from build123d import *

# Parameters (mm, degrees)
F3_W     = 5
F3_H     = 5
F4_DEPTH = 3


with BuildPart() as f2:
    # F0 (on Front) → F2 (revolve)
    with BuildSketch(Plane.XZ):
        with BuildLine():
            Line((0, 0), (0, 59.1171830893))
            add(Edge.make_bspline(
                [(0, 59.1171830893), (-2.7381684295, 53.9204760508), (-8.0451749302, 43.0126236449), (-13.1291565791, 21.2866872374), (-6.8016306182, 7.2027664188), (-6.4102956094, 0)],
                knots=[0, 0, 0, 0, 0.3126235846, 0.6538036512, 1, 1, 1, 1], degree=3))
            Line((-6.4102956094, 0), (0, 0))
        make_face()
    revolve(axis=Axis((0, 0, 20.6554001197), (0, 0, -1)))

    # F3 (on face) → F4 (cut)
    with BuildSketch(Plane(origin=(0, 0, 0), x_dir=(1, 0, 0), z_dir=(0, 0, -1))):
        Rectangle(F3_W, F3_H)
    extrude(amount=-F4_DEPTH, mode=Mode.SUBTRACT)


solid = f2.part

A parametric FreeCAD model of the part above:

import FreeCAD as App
import Part
import Sketcher

V = App.Vector


def add_polygon(sketch, points):
    """Adds a closed chain of lines whose ends are joined by coincident constraints."""
    first, n = sketch.GeometryCount, len(points)
    for a, b in zip(points, points[1:] + points[:1]):
        sketch.addGeometry(Part.LineSegment(App.Vector(*a, 0), App.Vector(*b, 0)), False)
    for i in range(n):
        sketch.addConstraint(Sketcher.Constraint("Coincident", first + i, 2, first + (i + 1) % n, 1))

doc = App.newDocument("Part")
body = doc.addObject("PartDesign::Body", "Body")

# Sketch on XZ plane
sketch1 = body.newObject("Sketcher::SketchObject", "Sketch")
sketch1.AttachmentSupport = (doc.getObject("XZ_Plane"), [""])
sketch1.MapMode = "FlatFace"
sketch1.addGeometry([
    Part.LineSegment(V(0, 0, 0), V(0, 59.117183, 0)),
    Part.BSplineCurve([V(0, 59.117183, 0), V(-2.738168, 53.920476, 0), V(-8.045175, 43.012624, 0), V(-13.129157, 21.286687, 0), V(-6.801631, 7.202766, 0), V(-6.410296, 0, 0)], [4, 1, 1, 4], [0, 0.312623585, 0.653803651, 1], False, 3, [1, 1, 1, 1, 1, 1], False),
    Part.LineSegment(V(-6.410296, 0, 0), V(0, 0, 0)),
], False)
sketch1.addConstraint([
    Sketcher.Constraint("Block", 1),
    Sketcher.Constraint("Coincident", 0, 2, 1, 1),
    Sketcher.Constraint("Coincident", 1, 2, 2, 1),
    Sketcher.Constraint("Coincident", 2, 2, 0, 1),
    Sketcher.Constraint("Vertical", 0),
    Sketcher.Constraint("Horizontal", 2),
])
revolution = body.newObject("PartDesign::Revolution", "Revolution")
revolution.Profile = sketch1
revolution.ReferenceAxis = (sketch1, ["V_Axis"])
revolution.Angle = 360

# Sketch on XY plane
sketch2 = body.newObject("Sketcher::SketchObject", "Sketch001")
sketch2.AttachmentSupport = (doc.getObject("XY_Plane"), [""])
sketch2.MapMode = "FlatFace"
add_polygon(sketch2, [(-2.5, -2.5), (-2.5, 2.5), (2.5, 2.5), (2.5, -2.5)])  # lines 0-3
sketch2.addConstraint([
    Sketcher.Constraint("Vertical", 0),
    Sketcher.Constraint("Horizontal", 1),
    Sketcher.Constraint("Vertical", 2),
    Sketcher.Constraint("Horizontal", 3),
    Sketcher.Constraint("Symmetric", 0, 2, 2, 2, -1, 1),
    Sketcher.Constraint("Equal", 3, 0),
    Sketcher.Constraint("DistanceX", 1, 1, 1, 2, 5.0),
])
pocket1 = body.newObject("PartDesign::Pocket", "Pocket")
pocket1.Profile = sketch2
pocket1.Length = 3
pocket1.Reversed = True

doc.recompute()
